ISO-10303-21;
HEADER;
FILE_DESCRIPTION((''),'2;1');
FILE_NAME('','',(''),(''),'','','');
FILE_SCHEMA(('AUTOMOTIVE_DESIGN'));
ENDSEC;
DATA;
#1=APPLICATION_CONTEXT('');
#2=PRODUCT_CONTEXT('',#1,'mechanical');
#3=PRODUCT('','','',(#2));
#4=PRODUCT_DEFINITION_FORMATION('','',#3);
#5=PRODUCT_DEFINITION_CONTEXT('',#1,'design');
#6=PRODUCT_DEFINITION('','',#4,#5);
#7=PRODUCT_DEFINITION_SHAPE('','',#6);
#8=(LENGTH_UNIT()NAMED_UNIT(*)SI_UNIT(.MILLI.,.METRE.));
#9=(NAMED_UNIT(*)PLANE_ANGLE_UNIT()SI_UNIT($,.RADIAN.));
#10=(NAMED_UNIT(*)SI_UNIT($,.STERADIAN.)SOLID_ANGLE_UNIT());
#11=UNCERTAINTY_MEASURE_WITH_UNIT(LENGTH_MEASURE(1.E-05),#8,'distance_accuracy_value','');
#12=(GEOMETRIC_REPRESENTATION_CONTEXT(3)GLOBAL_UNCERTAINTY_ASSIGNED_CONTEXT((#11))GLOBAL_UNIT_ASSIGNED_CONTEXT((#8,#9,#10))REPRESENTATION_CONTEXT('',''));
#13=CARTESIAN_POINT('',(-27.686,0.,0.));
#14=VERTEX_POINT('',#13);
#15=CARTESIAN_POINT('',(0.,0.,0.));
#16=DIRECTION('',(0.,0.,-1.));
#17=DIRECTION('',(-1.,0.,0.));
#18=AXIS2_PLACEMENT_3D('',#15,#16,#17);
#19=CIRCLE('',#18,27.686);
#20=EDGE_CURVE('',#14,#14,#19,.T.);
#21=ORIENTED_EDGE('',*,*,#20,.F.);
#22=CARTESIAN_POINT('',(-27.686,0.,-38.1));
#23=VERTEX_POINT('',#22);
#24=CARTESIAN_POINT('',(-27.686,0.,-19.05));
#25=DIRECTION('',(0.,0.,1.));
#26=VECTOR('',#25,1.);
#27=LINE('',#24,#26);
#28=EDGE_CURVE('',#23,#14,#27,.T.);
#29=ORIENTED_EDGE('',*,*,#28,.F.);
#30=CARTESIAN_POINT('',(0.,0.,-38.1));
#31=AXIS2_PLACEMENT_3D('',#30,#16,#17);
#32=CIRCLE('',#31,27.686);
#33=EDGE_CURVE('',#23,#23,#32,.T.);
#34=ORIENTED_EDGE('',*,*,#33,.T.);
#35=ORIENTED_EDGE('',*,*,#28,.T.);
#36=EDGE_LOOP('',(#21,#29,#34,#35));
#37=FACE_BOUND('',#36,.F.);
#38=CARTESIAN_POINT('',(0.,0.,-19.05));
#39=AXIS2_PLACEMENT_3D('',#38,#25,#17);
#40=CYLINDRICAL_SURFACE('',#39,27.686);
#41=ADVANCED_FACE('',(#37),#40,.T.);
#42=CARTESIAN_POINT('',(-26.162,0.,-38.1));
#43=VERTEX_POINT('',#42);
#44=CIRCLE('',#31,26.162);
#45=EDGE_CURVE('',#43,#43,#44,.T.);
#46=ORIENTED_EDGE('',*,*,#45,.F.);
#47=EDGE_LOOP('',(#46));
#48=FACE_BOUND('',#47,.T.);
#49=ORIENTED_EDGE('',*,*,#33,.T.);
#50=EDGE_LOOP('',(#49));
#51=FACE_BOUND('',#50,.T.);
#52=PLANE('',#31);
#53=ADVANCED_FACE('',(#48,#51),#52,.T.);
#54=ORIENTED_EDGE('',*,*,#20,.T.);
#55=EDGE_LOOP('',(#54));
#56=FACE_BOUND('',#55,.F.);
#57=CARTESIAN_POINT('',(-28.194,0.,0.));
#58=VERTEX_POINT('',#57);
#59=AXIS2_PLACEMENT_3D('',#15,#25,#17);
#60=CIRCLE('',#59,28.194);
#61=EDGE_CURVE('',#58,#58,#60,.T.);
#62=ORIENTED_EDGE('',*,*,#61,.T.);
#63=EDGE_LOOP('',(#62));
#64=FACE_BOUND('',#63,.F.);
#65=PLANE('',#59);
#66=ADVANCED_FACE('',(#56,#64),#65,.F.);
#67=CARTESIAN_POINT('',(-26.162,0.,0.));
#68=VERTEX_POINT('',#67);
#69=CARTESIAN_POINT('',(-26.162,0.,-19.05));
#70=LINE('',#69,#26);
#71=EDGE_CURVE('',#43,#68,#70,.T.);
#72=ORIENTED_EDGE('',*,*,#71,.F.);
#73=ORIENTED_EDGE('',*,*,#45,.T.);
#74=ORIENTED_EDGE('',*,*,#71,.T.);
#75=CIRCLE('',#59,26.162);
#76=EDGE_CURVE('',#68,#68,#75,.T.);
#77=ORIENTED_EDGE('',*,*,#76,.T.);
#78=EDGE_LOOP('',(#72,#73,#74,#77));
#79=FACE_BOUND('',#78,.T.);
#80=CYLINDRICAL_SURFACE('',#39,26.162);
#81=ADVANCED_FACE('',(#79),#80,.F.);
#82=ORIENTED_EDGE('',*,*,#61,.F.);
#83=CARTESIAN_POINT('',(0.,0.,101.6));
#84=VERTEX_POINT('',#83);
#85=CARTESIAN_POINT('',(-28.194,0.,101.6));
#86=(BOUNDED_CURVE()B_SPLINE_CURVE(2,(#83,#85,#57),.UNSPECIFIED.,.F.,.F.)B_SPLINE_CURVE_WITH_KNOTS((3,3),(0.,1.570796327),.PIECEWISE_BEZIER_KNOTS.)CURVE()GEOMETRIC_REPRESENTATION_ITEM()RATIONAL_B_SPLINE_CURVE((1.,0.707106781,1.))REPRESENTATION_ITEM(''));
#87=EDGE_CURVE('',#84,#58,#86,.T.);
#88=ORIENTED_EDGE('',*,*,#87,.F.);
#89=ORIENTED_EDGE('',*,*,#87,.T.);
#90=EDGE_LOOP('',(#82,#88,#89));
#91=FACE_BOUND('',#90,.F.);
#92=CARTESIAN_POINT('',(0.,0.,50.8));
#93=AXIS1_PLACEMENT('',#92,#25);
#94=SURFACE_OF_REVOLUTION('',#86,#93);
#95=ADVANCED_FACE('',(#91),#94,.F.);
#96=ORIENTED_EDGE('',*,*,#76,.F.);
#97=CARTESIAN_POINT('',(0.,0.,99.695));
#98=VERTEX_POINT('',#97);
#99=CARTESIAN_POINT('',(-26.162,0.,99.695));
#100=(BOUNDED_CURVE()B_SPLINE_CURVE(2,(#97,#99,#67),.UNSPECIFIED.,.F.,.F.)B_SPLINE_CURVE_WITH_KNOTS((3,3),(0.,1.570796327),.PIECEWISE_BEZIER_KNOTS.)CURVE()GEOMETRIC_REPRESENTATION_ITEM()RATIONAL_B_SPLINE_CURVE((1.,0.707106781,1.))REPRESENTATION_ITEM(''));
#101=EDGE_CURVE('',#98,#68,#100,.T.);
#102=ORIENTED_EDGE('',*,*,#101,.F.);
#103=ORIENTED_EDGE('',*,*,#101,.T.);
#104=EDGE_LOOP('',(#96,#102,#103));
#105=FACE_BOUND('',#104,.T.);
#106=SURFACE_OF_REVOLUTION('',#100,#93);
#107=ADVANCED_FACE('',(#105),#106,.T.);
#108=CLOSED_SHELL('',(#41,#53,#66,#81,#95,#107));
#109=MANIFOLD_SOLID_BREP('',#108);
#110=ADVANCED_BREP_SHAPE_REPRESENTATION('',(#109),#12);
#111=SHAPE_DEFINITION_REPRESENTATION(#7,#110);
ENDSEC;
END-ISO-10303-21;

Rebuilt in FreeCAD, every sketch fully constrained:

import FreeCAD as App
import Part
import Sketcher

V = App.Vector
Q = App.Units.Quantity


def add_polygon(sketch, points):
    """Adds a closed chain of lines whose ends are joined by coincident constraints."""
    first, n = sketch.GeometryCount, len(points)
    for a, b in zip(points, points[1:] + points[:1]):
        sketch.addGeometry(Part.LineSegment(App.Vector(*a, 0), App.Vector(*b, 0)), False)
    for i in range(n):
        sketch.addConstraint(Sketcher.Constraint("Coincident", first + i, 2, first + (i + 1) % n, 1))

doc = App.newDocument("Part")
body = doc.addObject("PartDesign::Body", "Body")

sketch1 = body.newObject("Sketcher::SketchObject", "Sketch")
sketch1.AttachmentSupport = (doc.getObject("XZ_Plane"), [""])
sketch1.MapMode = "FlatFace"
sketch1.addGeometry(Part.LineSegment(V(0, 99.695, 0), V(0, 101.6, 0)), False)
sketch1.addGeometry(Part.BSplineCurve([V(0, 101.6, 0), V(-28.194, 101.6, 0), V(-28.194, 0, 0)], [3, 3], [0, 1.570796327], False, 2, [1, 0.707106781, 1], False), False)
sketch1.addGeometry(Part.LineSegment(V(-28.194, 0, 0), V(-26.162, 0, 0)), False)
sketch1.addGeometry(Part.BSplineCurve([V(0, 99.695, 0), V(-26.162, 99.695, 0), V(-26.162, 0, 0)], [3, 3], [0, 1.570796327], False, 2, [1, 0.707106781, 1], False), False)
sketch1.addConstraint(Sketcher.Constraint("Block", 1))
sketch1.addConstraint(Sketcher.Constraint("Block", 3))
sketch1.addConstraint(Sketcher.Constraint("Coincident", 0, 2, 1, 1))
sketch1.addConstraint(Sketcher.Constraint("Coincident", 1, 2, 2, 1))
sketch1.addConstraint(Sketcher.Constraint("Coincident", 2, 2, 3, 2))
sketch1.addConstraint(Sketcher.Constraint("Coincident", 3, 1, 0, 1))
revolution = body.newObject("PartDesign::Revolution", "Revolution")
revolution.Profile = sketch1
revolution.ReferenceAxis = (sketch1, ["V_Axis"])
revolution.Angle = 360

sketch2 = body.newObject("Sketcher::SketchObject", "Sketch001")
sketch2.AttachmentSupport = (doc.getObject("XZ_Plane"), [""])
sketch2.MapMode = "FlatFace"
add_polygon(sketch2, [(-27.7, 0), (-27.7, -38.1), (-26.2, -38.1), (-26.2, 0)])
sketch2.addConstraint(Sketcher.Constraint("Vertical", 0))
sketch2.addConstraint(Sketcher.Constraint("Horizontal", 1))
sketch2.addConstraint(Sketcher.Constraint("Vertical", 2))
sketch2.addConstraint(Sketcher.Constraint("Horizontal", 3))
sketch2.addConstraint(Sketcher.Constraint("PointOnObject", 2, 2, -1))
sketch2.addConstraint(Sketcher.Constraint("DistanceY", 0, 2, 0, 1, Q("1.5 in")))
sketch2.addConstraint(Sketcher.Constraint("DistanceX", 1, 1, 1, 2, Q("0.06 in")))
sketch2.addConstraint(Sketcher.Constraint("DistanceX", 0, 2, -1, 1, Q("1.09 in")))
revolution2 = body.newObject("PartDesign::Revolution", "Revolution001")
revolution2.Profile = sketch2
revolution2.ReferenceAxis = (sketch2, ["V_Axis"])
revolution2.Angle = 360

doc.recompute()
